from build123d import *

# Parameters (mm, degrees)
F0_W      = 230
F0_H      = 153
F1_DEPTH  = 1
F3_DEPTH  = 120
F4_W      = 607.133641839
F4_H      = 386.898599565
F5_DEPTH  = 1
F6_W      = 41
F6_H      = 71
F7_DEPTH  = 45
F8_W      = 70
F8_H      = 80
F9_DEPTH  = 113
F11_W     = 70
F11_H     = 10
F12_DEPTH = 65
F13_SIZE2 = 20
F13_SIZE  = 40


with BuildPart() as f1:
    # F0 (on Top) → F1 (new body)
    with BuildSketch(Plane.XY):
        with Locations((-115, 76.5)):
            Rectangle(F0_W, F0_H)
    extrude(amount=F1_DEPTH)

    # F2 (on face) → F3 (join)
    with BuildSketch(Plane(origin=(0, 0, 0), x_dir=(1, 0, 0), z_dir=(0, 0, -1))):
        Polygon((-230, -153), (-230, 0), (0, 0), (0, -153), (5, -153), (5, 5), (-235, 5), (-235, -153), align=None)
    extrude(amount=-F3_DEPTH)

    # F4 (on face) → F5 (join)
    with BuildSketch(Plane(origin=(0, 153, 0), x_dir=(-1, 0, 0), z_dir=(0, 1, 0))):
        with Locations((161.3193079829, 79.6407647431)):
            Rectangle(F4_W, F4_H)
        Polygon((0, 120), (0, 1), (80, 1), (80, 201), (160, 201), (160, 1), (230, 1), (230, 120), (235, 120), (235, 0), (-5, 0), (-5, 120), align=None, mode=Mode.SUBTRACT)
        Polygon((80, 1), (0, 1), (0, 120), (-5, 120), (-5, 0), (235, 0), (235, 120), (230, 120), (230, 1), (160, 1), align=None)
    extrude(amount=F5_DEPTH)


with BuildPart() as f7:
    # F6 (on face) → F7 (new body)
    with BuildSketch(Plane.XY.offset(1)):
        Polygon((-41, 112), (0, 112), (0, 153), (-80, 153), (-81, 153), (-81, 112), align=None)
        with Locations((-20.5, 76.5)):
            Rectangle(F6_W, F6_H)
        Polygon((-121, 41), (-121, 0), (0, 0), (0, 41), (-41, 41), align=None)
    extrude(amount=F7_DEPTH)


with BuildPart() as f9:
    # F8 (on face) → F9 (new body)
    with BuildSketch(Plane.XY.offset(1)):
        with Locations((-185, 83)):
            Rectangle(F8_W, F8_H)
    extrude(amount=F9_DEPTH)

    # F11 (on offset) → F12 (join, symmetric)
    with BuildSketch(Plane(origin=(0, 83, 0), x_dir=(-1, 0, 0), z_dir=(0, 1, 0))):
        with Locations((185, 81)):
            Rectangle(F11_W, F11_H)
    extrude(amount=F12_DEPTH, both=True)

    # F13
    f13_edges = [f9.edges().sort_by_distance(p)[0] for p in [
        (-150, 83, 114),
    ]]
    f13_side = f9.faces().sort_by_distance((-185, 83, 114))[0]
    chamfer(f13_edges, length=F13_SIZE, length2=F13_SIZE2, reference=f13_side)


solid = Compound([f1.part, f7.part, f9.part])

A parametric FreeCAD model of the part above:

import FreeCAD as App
import Part
import Sketcher
from FreeCAD import Vector


def edges_at(feature, points):
    """Names of the edges that pass closest to the given points."""
    edges = feature.Shape.Edges
    near = lambda p: min(range(len(edges)), key=lambda i: edges[i].distToShape(Part.Vertex(*p))[0])
    return sorted({f"Edge{near(p) + 1}" for p in points})

doc = App.newDocument("Part")
params = doc.addObject("Spreadsheet::Sheet", "Params")
for row, (alias, value) in enumerate([
    ("sketch1_width", "230 mm"),
    ("sketch1_height", "153 mm"),
    ("pad1_length", "1 mm"),
    ("sketch2_width", "230 mm"),
    ("sketch2_width2", "5 mm"),
    ("sketch2_height", "153 mm"),
    ("sketch2_height2", "158 mm"),
    ("pad2_length", "120 mm"),
    ("sketch3_width", "80 mm"),
    ("sketch3_height", "200 mm"),
    ("pad3_length", "1 mm"),
    ("sketch4_width", "81 mm"),
    ("sketch4_width2", "40 mm"),
    ("sketch4_width3", "80 mm"),
    ("sketch4_height", "41 mm"),
    ("sketch4_height2", "71 mm"),
    ("pad4_length", "45 mm"),
    ("sketch5_width", "70 mm"),
    ("sketch5_height", "80 mm"),
    ("pad5_length", "113 mm"),
    ("sketch6_width", "70 mm"),
    ("sketch6_height", "10 mm"),
    ("pad6_length", "130 mm"),
    ("chamfer_size", "40 mm"),
    ("chamfer_size2", "20 mm"),
], start=1):
    params.set(f"A{row}", alias)
    params.set(f"B{row}", "=" + value)
    params.setAlias(f"B{row}", alias)

body = doc.addObject("PartDesign::Body", "Body")

sketch1 = body.newObject("Sketcher::SketchObject", "Sketch")
sketch1.AttachmentSupport = (doc.getObject("XY_Plane"), [""])
sketch1.MapMode = "FlatFace"
sketch1.addGeometry([
    Part.LineSegment(Vector(-230, 153, 0), Vector(-230, 0, 0)),
    Part.LineSegment(Vector(-230, 0, 0), Vector(0, 0, 0)),
    Part.LineSegment(Vector(0, 0, 0), Vector(0, 153, 0)),
    Part.LineSegment(Vector(0, 153, 0), Vector(-230, 153, 0)),
], False)
sketch1.addConstraint([
    Sketcher.Constraint("Coincident", 0, 2, 1, 1),
    Sketcher.Constraint("Coincident", 1, 2, 2, 1),
    Sketcher.Constraint("Coincident", 2, 2, 3, 1),
    Sketcher.Constraint("Coincident", 3, 2, 0, 1),
    Sketcher.Constraint("Vertical", 0),
    Sketcher.Constraint("Horizontal", 1),
    Sketcher.Constraint("Vertical", 2),
    Sketcher.Constraint("Horizontal", 3),
    Sketcher.Constraint("Coincident", 1, 2, -1, 1),
    Sketcher.Constraint("DistanceX", 1, 1, 1, 2, 230.0),
    Sketcher.Constraint("DistanceY", 0, 2, 0, 1, 153.0),
])
sketch1.setExpression("Constraints[9]", "Params.sketch1_width")
sketch1.setExpression("Constraints[10]", "Params.sketch1_height")
pad1 = body.newObject("PartDesign::Pad", "Pad")
pad1.Profile = sketch1
pad1.setExpression("Length", "Params.pad1_length")

sketch2 = body.newObject("Sketcher::SketchObject", "Sketch001")
sketch2.AttachmentSupport = (doc.getObject("XY_Plane"), [""])
sketch2.MapMode = "FlatFace"
sketch2.addGeometry([
    Part.LineSegment(Vector(-230, 153, 0), Vector(-230, 0, 0)),
    Part.LineSegment(Vector(-230, 0, 0), Vector(0, 0, 0)),
    Part.LineSegment(Vector(0, 0, 0), Vector(0, 153, 0)),
    Part.LineSegment(Vector(0, 153, 0), Vector(5, 153, 0)),
    Part.LineSegment(Vector(5, 153, 0), Vector(5, -5, 0)),
    Part.LineSegment(Vector(5, -5, 0), Vector(-235, -5, 0)),
    Part.LineSegment(Vector(-235, -5, 0), Vector(-235, 153, 0)),
    Part.LineSegment(Vector(-235, 153, 0), Vector(-230, 153, 0)),
], False)
sketch2.addConstraint([
    Sketcher.Constraint("Coincident", 0, 2, 1, 1),
    Sketcher.Constraint("Coincident", 1, 2, 2, 1),
    Sketcher.Constraint("Coincident", 2, 2, 3, 1),
    Sketcher.Constraint("Coincident", 3, 2, 4, 1),
    Sketcher.Constraint("Coincident", 4, 2, 5, 1),
    Sketcher.Constraint("Coincident", 5, 2, 6, 1),
    Sketcher.Constraint("Coincident", 6, 2, 7, 1),
    Sketcher.Constraint("Coincident", 7, 2, 0, 1),
    Sketcher.Constraint("Vertical", 0),
    Sketcher.Constraint("Horizontal", 1),
    Sketcher.Constraint("Vertical", 2),
    Sketcher.Constraint("Horizontal", 3),
    Sketcher.Constraint("Vertical", 4),
    Sketcher.Constraint("Horizontal", 5),
    Sketcher.Constraint("Vertical", 6),
    Sketcher.Constraint("Horizontal", 7),
    Sketcher.Constraint("Coincident", 1, 2, -1, 1),
    Sketcher.Constraint("Horizontal", 3, 2, 6, 2),
    Sketcher.Constraint("Equal", 3, 7),
    Sketcher.Constraint("DistanceX", 1, 1, 1, 2, 230.0),
    Sketcher.Constraint("DistanceX", 3, 1, 3, 2, 5.0),
    Sketcher.Constraint("DistanceY", 0, 2, 0, 1, 153.0),
    Sketcher.Constraint("DistanceY", 4, 2, 4, 1, 158.0),
])
sketch2.setExpression("Constraints[19]", "Params.sketch2_width")
sketch2.setExpression("Constraints[20]", "Params.sketch2_width2")
sketch2.setExpression("Constraints[21]", "Params.sketch2_height")
sketch2.setExpression("Constraints[22]", "Params.sketch2_height2")
pad2 = body.newObject("PartDesign::Pad", "Pad001")
pad2.Profile = sketch2
pad2.setExpression("Length", "Params.pad2_length")

sketch3 = body.newObject("Sketcher::SketchObject", "Sketch002")
sketch3.AttachmentSupport = (doc.getObject("XZ_Plane"), [""])
sketch3.MapMode = "FlatFace"
sketch3.AttachmentOffset = App.Placement(Vector(0, 0, -153), App.Rotation())
sketch3.addGeometry([
    Part.LineSegment(Vector(142, 273, 0), Vector(142, -114, 0)),
    Part.LineSegment(Vector(142, -114, 0), Vector(-465, -114, 0)),
    Part.LineSegment(Vector(-465, -114, 0), Vector(-465, 273, 0)),
    Part.LineSegment(Vector(-465, 273, 0), Vector(142, 273, 0)),
    Part.LineSegment(Vector(-160, 201, 0), Vector(-160, 1, 0)),
    Part.LineSegment(Vector(-160, 1, 0), Vector(-80, 1, 0)),
    Part.LineSegment(Vector(-80, 1, 0), Vector(-80, 201, 0)),
    Part.LineSegment(Vector(-80, 201, 0), Vector(-160, 201, 0)),
], False)
sketch3.addConstraint([
    Sketcher.Constraint("Coincident", 0, 2, 1, 1),
    Sketcher.Constraint("Coincident", 1, 2, 2, 1),
    Sketcher.Constraint("Coincident", 2, 2, 3, 1),
    Sketcher.Constraint("Coincident", 3, 2, 0, 1),
    Sketcher.Constraint("Coincident", 4, 2, 5, 1),
    Sketcher.Constraint("Coincident", 5, 2, 6, 1),
    Sketcher.Constraint("Coincident", 6, 2, 7, 1),
    Sketcher.Constraint("Coincident", 7, 2, 4, 1),
    Sketcher.Constraint("Vertical", 0),
    Sketcher.Constraint("Horizontal", 1),
    Sketcher.Constraint("Vertical", 2),
    Sketcher.Constraint("Horizontal", 3),
    Sketcher.Constraint("Vertical", 4),
    Sketcher.Constraint("Horizontal", 5),
    Sketcher.Constraint("Vertical", 6),
    Sketcher.Constraint("Horizontal", 7),
    Sketcher.Constraint("DistanceX", 5, 1, 5, 2, 80.0),
    Sketcher.Constraint("DistanceY", 4, 2, 4, 1, 200.0),
    Sketcher.Constraint("DistanceX", 4, 2, -1, 1, 160.0),
    Sketcher.Constraint("DistanceY", -1, 1, 4, 2, 1.0),
    Sketcher.Constraint("DistanceY", 0, 2, 0, 1, 386.8986),
    Sketcher.Constraint("DistanceX", 1, 2, 1, 1, 607.133642),
    Sketcher.Constraint("DistanceX", 1, 2, -1, 1, 464.886129),
    Sketcher.Constraint("DistanceY", 0, 2, -1, 1, 113.808535),
])
sketch3.setExpression("Constraints[16]", "Params.sketch3_width")
sketch3.setExpression("Constraints[17]", "Params.sketch3_height")
pad3 = body.newObject("PartDesign::Pad", "Pad002")
pad3.Profile = sketch3
pad3.setExpression("Length", "Params.pad3_length")
pad3.Reversed = True
body2 = doc.addObject("PartDesign::Body", "Body001")

sketch4 = body2.newObject("Sketcher::SketchObject", "Sketch003")
sketch4.AttachmentSupport = (doc.getObject("XY_Plane001"), [""])
sketch4.MapMode = "FlatFace"
sketch4.AttachmentOffset = App.Placement(Vector(0, 0, 1), App.Rotation())
sketch4.addGeometry([
    Part.LineSegment(Vector(0, 153, 0), Vector(-81, 153, 0)),
    Part.LineSegment(Vector(-81, 153, 0), Vector(-81, 112, 0)),
    Part.LineSegment(Vector(-81, 112, 0), Vector(-41, 112, 0)),
    Part.LineSegment(Vector(-41, 112, 0), Vector(-41, 41, 0)),
    Part.LineSegment(Vector(-41, 41, 0), Vector(-121, 41, 0)),
    Part.LineSegment(Vector(-121, 41, 0), Vector(-121, 0, 0)),
    Part.LineSegment(Vector(-121, 0, 0), Vector(0, 0, 0)),
    Part.LineSegment(Vector(0, 0, 0), Vector(0, 153, 0)),
], False)
sketch4.addConstraint([
    Sketcher.Constraint("Coincident", 0, 2, 1, 1),
    Sketcher.Constraint("Coincident", 1, 2, 2, 1),
    Sketcher.Constraint("Coincident", 2, 2, 3, 1),
    Sketcher.Constraint("Coincident", 3, 2, 4, 1),
    Sketcher.Constraint("Coincident", 4, 2, 5, 1),
    Sketcher.Constraint("Coincident", 5, 2, 6, 1),
    Sketcher.Constraint("Coincident", 6, 2, 7, 1),
    Sketcher.Constraint("Coincident", 7, 2, 0, 1),
    Sketcher.Constraint("Horizontal", 0),
    Sketcher.Constraint("Vertical", 1),
    Sketcher.Constraint("Horizontal", 2),
    Sketcher.Constraint("Vertical", 3),
    Sketcher.Constraint("Horizontal", 4),
    Sketcher.Constraint("Vertical", 5),
    Sketcher.Constraint("Horizontal", 6),
    Sketcher.Constraint("Vertical", 7),
    Sketcher.Constraint("Coincident", 6, 2, -1, 1),
    Sketcher.Constraint("Equal", 1, 5),
    Sketcher.Constraint("DistanceX", 0, 2, 0, 1, 81.0),
    Sketcher.Constraint("DistanceX", 2, 1, 2, 2, 40.0),
    Sketcher.Constraint("DistanceX", 4, 2, 4, 1, 80.0),
    Sketcher.Constraint("DistanceY", 1, 2, 1, 1, 41.0),
    Sketcher.Constraint("DistanceY", 3, 2, 3, 1, 71.0),
])
sketch4.setExpression("Constraints[18]", "Params.sketch4_width")
sketch4.setExpression("Constraints[19]", "Params.sketch4_width2")
sketch4.setExpression("Constraints[20]", "Params.sketch4_width3")
sketch4.setExpression("Constraints[21]", "Params.sketch4_height")
sketch4.setExpression("Constraints[22]", "Params.sketch4_height2")
pad4 = body2.newObject("PartDesign::Pad", "Pad003")
pad4.Profile = sketch4
pad4.setExpression("Length", "Params.pad4_length")
body3 = doc.addObject("PartDesign::Body", "Body002")

sketch5 = body3.newObject("Sketcher::SketchObject", "Sketch004")
sketch5.AttachmentSupport = (doc.getObject("XY_Plane002"), [""])
sketch5.MapMode = "FlatFace"
sketch5.AttachmentOffset = App.Placement(Vector(0, 0, 1), App.Rotation())
sketch5.addGeometry([
    Part.LineSegment(Vector(-220, 123, 0), Vector(-220, 43, 0)),
    Part.LineSegment(Vector(-220, 43, 0), Vector(-150, 43, 0)),
    Part.LineSegment(Vector(-150, 43, 0), Vector(-150, 123, 0)),
    Part.LineSegment(Vector(-150, 123, 0), Vector(-220, 123, 0)),
], False)
sketch5.addConstraint([
    Sketcher.Constraint("Coincident", 0, 2, 1, 1),
    Sketcher.Constraint("Coincident", 1, 2, 2, 1),
    Sketcher.Constraint("Coincident", 2, 2, 3, 1),
    Sketcher.Constraint("Coincident", 3, 2, 0, 1),
    Sketcher.Constraint("Vertical", 0),
    Sketcher.Constraint("Horizontal", 1),
    Sketcher.Constraint("Vertical", 2),
    Sketcher.Constraint("Horizontal", 3),
    Sketcher.Constraint("DistanceX", 1, 1, 1, 2, 70.0),
    Sketcher.Constraint("DistanceY", 0, 2, 0, 1, 80.0),
    Sketcher.Constraint("DistanceX", 0, 2, -1, 1, 220.0),
    Sketcher.Constraint("DistanceY", -1, 1, 0, 2, 43.0),
])
sketch5.setExpression("Constraints[8]", "Params.sketch5_width")
sketch5.setExpression("Constraints[9]", "Params.sketch5_height")
pad5 = body3.newObject("PartDesign::Pad", "Pad004")
pad5.Profile = sketch5
pad5.setExpression("Length", "Params.pad5_length")

sketch6 = body3.newObject("Sketcher::SketchObject", "Sketch005")
sketch6.AttachmentSupport = (doc.getObject("XZ_Plane002"), [""])
sketch6.MapMode = "FlatFace"
sketch6.AttachmentOffset = App.Placement(Vector(0, 0, -83), App.Rotation())
sketch6.addGeometry([
    Part.LineSegment(Vector(-150, 86, 0), Vector(-150, 76, 0)),
    Part.LineSegment(Vector(-150, 76, 0), Vector(-220, 76, 0)),
    Part.LineSegment(Vector(-220, 76, 0), Vector(-220, 86, 0)),
    Part.LineSegment(Vector(-220, 86, 0), Vector(-150, 86, 0)),
], False)
sketch6.addConstraint([
    Sketcher.Constraint("Coincident", 0, 2, 1, 1),
    Sketcher.Constraint("Coincident", 1, 2, 2, 1),
    Sketcher.Constraint("Coincident", 2, 2, 3, 1),
    Sketcher.Constraint("Coincident", 3, 2, 0, 1),
    Sketcher.Constraint("Vertical", 0),
    Sketcher.Constraint("Horizontal", 1),
    Sketcher.Constraint("Vertical", 2),
    Sketcher.Constraint("Horizontal", 3),
    Sketcher.Constraint("DistanceX", 1, 2, 1, 1, 70.0),
    Sketcher.Constraint("DistanceY", 0, 2, 0, 1, 10.0),
    Sketcher.Constraint("DistanceX", 0, 2, -1, 1, 150.0),
    Sketcher.Constraint("DistanceY", -1, 1, 0, 2, 76.0),
])
sketch6.setExpression("Constraints[8]", "Params.sketch6_width")
sketch6.setExpression("Constraints[9]", "Params.sketch6_height")
pad6 = body3.newObject("PartDesign::Pad", "Pad005")
pad6.Profile = sketch6
pad6.setExpression("Length", "Params.pad6_length")
pad6.Midplane = True
doc.recompute()

chamfer = body3.newObject("PartDesign::Chamfer", "Chamfer")
chamfer.Base = (pad6, edges_at(pad6, [(-150, 83, 114)]))
chamfer.ChamferType = "Two distances"
chamfer.setExpression("Size", "Params.chamfer_size")
chamfer.setExpression("Size2", "Params.chamfer_size2")

doc.recompute()
